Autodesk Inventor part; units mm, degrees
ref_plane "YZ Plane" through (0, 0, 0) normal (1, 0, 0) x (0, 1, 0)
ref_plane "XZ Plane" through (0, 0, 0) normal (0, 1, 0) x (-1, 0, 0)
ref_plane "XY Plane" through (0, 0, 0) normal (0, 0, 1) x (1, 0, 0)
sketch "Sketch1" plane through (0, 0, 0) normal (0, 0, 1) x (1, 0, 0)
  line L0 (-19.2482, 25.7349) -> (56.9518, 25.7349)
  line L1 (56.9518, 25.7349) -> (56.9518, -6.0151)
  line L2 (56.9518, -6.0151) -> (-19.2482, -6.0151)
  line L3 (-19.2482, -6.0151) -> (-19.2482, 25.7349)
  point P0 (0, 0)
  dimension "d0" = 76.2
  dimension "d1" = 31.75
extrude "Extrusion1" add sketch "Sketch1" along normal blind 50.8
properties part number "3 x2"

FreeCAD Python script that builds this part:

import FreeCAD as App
import Part
import Sketcher
Q = App.Units.Quantity


def add_polygon(sketch, points):
    """Adds a closed chain of lines whose ends are joined by coincident constraints."""
    first, n = sketch.GeometryCount, len(points)
    for a, b in zip(points, points[1:] + points[:1]):
        sketch.addGeometry(Part.LineSegment(App.Vector(*a, 0), App.Vector(*b, 0)), False)
    for i in range(n):
        sketch.addConstraint(Sketcher.Constraint("Coincident", first + i, 2, first + (i + 1) % n, 1))

doc = App.newDocument("Part")
body = doc.addObject("PartDesign::Body", "Body")

# Sketch on XY plane
sketch1 = doc.addObject("Sketcher::SketchObject", "Sketch")
body.addObject(sketch1)
sketch1.AttachmentSupport = (doc.XY_Plane, [""])
sketch1.MapMode = "FlatFace"
add_polygon(sketch1, [(57, 26), (-19, 26), (-19, -6), (57, -6)])  # lines 0-3
sketch1.addConstraint([
    Sketcher.Constraint("Horizontal", 0),
    Sketcher.Constraint("Vertical", 1),
    Sketcher.Constraint("Horizontal", 2),
    Sketcher.Constraint("Vertical", 3),
    Sketcher.Constraint("DistanceX", 0, 2, 0, 1, Q("3 in")),
    Sketcher.Constraint("DistanceY", 1, 2, 1, 1, Q("1.25 in")),
    Sketcher.Constraint("DistanceX", 0, 2, -1, 1, Q("0.7578 in")),
    Sketcher.Constraint("DistanceY", -1, 1, 0, 2, Q("1.013189 in")),
])
pad1 = doc.addObject("PartDesign::Pad", "Pad")
body.addObject(pad1)
pad1.Profile = sketch1
pad1.Length = Q("2 in")

doc.recompute()
